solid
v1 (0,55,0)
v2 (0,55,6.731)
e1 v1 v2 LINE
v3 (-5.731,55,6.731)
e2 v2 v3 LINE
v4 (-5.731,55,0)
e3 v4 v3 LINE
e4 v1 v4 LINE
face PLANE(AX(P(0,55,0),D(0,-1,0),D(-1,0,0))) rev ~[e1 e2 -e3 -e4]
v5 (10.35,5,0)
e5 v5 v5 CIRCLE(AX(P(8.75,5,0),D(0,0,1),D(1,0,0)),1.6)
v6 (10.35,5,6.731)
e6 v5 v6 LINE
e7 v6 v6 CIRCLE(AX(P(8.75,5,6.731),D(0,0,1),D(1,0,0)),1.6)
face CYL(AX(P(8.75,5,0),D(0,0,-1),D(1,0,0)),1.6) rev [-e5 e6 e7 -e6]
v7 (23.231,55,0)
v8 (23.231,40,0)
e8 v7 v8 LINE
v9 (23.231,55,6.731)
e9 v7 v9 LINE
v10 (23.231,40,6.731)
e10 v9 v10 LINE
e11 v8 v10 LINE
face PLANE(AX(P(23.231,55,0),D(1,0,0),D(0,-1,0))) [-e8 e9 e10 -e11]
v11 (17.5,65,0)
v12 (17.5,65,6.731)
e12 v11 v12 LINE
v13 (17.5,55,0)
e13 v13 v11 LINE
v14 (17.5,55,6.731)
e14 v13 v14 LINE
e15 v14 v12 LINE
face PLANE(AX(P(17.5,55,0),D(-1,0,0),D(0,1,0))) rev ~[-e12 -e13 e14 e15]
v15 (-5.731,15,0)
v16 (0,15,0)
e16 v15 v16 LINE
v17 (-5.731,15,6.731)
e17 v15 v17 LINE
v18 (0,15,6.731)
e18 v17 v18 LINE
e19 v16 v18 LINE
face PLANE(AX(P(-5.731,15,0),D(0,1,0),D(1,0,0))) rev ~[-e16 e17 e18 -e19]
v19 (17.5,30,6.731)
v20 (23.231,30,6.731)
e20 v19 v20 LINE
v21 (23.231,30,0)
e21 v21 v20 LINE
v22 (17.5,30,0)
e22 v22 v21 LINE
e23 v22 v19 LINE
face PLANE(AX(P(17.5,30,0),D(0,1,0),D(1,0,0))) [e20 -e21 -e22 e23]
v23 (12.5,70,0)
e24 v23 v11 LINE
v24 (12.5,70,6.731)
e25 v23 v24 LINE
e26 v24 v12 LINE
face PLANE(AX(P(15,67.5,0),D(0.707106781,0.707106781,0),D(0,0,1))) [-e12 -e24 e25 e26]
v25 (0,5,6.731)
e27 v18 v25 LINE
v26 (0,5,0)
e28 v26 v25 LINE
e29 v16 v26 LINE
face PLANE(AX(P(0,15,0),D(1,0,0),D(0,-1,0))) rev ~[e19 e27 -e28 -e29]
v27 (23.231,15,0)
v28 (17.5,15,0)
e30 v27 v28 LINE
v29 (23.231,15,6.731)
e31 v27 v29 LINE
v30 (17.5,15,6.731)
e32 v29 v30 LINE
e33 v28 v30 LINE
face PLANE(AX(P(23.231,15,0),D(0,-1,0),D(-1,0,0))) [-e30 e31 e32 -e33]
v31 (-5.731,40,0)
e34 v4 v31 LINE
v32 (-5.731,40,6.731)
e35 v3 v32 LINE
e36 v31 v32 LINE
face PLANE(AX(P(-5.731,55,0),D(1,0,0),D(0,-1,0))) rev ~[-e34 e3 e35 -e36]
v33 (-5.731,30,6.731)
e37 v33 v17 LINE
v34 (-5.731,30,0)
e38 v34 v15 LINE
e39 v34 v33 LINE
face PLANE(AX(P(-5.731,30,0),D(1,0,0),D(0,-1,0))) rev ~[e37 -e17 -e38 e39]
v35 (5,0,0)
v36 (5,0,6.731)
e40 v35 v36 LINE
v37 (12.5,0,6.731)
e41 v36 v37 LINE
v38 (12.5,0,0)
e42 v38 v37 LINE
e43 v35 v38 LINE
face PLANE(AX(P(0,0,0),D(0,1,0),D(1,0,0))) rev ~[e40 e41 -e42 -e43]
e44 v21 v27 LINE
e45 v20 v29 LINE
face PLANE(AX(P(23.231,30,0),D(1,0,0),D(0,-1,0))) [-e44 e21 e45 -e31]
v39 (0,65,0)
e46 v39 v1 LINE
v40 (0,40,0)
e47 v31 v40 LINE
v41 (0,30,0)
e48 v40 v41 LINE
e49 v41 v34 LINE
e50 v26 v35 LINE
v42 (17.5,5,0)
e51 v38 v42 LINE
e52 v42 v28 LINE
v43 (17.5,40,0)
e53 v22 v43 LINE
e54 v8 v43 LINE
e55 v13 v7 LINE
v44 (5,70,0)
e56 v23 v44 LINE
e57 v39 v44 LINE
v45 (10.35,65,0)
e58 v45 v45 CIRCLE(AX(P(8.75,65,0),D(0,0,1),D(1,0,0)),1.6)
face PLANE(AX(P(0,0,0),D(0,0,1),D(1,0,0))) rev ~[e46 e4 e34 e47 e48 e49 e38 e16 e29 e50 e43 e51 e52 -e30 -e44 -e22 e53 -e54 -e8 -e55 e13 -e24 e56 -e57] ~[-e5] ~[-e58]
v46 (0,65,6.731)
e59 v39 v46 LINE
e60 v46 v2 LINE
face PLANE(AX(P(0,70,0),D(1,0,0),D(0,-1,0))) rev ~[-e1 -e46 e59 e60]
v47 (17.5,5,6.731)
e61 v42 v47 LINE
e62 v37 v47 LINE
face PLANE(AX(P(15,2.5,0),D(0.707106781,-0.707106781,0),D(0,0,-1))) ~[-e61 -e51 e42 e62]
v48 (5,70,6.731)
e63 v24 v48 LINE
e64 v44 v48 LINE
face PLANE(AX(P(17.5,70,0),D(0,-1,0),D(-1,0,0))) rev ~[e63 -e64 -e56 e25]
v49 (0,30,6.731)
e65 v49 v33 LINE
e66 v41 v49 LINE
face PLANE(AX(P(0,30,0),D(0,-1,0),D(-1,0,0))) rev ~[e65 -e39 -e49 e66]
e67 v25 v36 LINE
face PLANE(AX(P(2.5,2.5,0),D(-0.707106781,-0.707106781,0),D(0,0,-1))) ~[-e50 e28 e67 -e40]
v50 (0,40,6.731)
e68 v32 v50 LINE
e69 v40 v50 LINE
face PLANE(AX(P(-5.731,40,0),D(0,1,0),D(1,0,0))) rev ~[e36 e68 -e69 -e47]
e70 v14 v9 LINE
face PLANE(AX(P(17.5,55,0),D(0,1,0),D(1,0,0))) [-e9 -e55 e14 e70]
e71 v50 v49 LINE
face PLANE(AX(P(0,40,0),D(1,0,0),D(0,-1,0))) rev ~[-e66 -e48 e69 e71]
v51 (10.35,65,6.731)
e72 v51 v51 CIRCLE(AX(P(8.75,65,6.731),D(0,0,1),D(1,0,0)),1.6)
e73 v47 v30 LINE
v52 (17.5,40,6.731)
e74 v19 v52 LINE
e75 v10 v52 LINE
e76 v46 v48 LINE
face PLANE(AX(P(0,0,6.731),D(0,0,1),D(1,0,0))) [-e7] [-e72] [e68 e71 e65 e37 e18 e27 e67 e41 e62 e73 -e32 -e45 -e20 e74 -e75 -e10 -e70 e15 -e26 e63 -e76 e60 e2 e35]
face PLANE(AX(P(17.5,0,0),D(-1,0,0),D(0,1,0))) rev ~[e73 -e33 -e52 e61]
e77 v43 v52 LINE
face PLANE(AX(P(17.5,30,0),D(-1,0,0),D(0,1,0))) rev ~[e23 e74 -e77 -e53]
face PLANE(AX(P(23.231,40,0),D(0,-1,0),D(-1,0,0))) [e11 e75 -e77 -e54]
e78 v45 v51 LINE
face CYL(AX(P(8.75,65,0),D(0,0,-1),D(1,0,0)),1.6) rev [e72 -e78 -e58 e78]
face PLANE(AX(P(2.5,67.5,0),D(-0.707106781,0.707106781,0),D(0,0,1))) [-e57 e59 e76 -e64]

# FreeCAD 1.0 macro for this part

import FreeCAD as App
import Part
import Sketcher


def edges_at(feature, points):
    """Names of the edges that pass closest to the given points."""
    edges = feature.Shape.Edges
    near = lambda p: min(range(len(edges)), key=lambda i: edges[i].distToShape(Part.Vertex(*p))[0])
    return sorted({f"Edge{near(p) + 1}" for p in points})


def add_polygon(sketch, points):
    """Adds a closed chain of lines whose ends are joined by coincident constraints."""
    first, n = sketch.GeometryCount, len(points)
    for a, b in zip(points, points[1:] + points[:1]):
        sketch.addGeometry(Part.LineSegment(App.Vector(*a, 0), App.Vector(*b, 0)), False)
    for i in range(n):
        sketch.addConstraint(Sketcher.Constraint("Coincident", first + i, 2, first + (i + 1) % n, 1))

doc = App.newDocument("Part")
body = doc.addObject("PartDesign::Body", "Body")

# Sketch on XY plane
sketch1 = doc.addObject("Sketcher::SketchObject", "Sketch")
body.addObject(sketch1)
sketch1.AttachmentSupport = (doc.XY_Plane, [""])
sketch1.MapMode = "FlatFace"
add_polygon(sketch1, [(0, 15), (0, 0), (17.5, 0), (17.5, 15), (23.2, 15), (23.2, 30), (17.5, 30), (17.5, 40), (23.2, 40), (23.2, 55), (17.5, 55), (17.5, 70), (0, 70), (0, 55), (-5.7, 55), (-5.7, 40), (0, 40), (0, 30), (-5.7, 30), (-5.7, 15)])  # lines 0-19
sketch1.addGeometry(Part.Circle(App.Vector(8.8, 5, 0), App.Vector(0, 0, 1), 1.6), False)  # 20
sketch1.addGeometry(Part.Circle(App.Vector(8.8, 65, 0), App.Vector(0, 0, 1), 1.6), False)  # 21
sketch1.addConstraint([
    Sketcher.Constraint("Vertical", 0),
    Sketcher.Constraint("Horizontal", 1),
    Sketcher.Constraint("Vertical", 2),
    Sketcher.Constraint("Horizontal", 3),
    Sketcher.Constraint("Vertical", 4),
    Sketcher.Constraint("Horizontal", 5),
    Sketcher.Constraint("Vertical", 6),
    Sketcher.Constraint("Horizontal", 7),
    Sketcher.Constraint("Vertical", 8),
    Sketcher.Constraint("Horizontal", 9),
    Sketcher.Constraint("Vertical", 10),
    Sketcher.Constraint("Horizontal", 11),
    Sketcher.Constraint("Vertical", 12),
    Sketcher.Constraint("Horizontal", 13),
    Sketcher.Constraint("Vertical", 14),
    Sketcher.Constraint("Horizontal", 15),
    Sketcher.Constraint("Vertical", 16),
    Sketcher.Constraint("Horizontal", 17),
    Sketcher.Constraint("Vertical", 18),
    Sketcher.Constraint("Horizontal", 19),
    Sketcher.Constraint("Coincident", 0, 2, -1, 1),
    Sketcher.Constraint("Equal", 20, 21),
    Sketcher.Constraint("PointOnObject", 11, 2, -2),
    Sketcher.Constraint("PointOnObject", 15, 2, -2),
    Sketcher.Constraint("Horizontal", 9, 2, 12, 2),
    Sketcher.Constraint("Horizontal", 7, 2, 14, 2),
    Sketcher.Constraint("Horizontal", 5, 2, 16, 2),
    Sketcher.Constraint("Horizontal", 3, 2, 18, 2),
    Sketcher.Constraint("Vertical", 20, 3, 21, 3),
    Sketcher.Constraint("Vertical", 2, 2, 5, 2),
    Sketcher.Constraint("Vertical", 4, 2, 7, 2),
    Sketcher.Constraint("Vertical", 6, 2, 9, 2),
    Sketcher.Constraint("Vertical", 14, 2, 17, 2),
    Sketcher.Constraint("Equal", 9, 13),
    Sketcher.Constraint("Equal", 2, 4),
    Sketcher.Constraint("Equal", 4, 8),
    Sketcher.Constraint("Equal", 8, 10),
    Sketcher.Constraint("Diameter", 20, 3.2),
    Sketcher.Constraint("DistanceY", 0, 2, 0, 1, 15.0),
    Sketcher.Constraint("DistanceY", 6, 1, 6, 2, 10.0),
    Sketcher.Constraint("DistanceX", 1, 1, 1, 2, 17.5),
    Sketcher.Constraint("DistanceY", -1, 1, 20, 3, 5.0),
    Sketcher.Constraint("DistanceY", 8, 2, 21, 3, 10.0),
    Sketcher.Constraint("DistanceX", 3, 1, 3, 2, 5.731),
    Sketcher.Constraint("DistanceX", -1, 1, 20, 3, 8.75),
])
pad1 = doc.addObject("PartDesign::Pad", "Pad")
body.addObject(pad1)
pad1.Profile = sketch1
pad1.Length = 6.731
doc.recompute()

chamfer = doc.addObject("PartDesign::Chamfer", "Chamfer")
body.addObject(chamfer)
chamfer.Base = (pad1, edges_at(pad1, [
    (0, 70, 3.365),
    (17.5, 70, 3.365),
    (0, 0, 3.365),
    (17.5, 0, 3.365),
]))
chamfer.Size = 5

doc.recompute()
